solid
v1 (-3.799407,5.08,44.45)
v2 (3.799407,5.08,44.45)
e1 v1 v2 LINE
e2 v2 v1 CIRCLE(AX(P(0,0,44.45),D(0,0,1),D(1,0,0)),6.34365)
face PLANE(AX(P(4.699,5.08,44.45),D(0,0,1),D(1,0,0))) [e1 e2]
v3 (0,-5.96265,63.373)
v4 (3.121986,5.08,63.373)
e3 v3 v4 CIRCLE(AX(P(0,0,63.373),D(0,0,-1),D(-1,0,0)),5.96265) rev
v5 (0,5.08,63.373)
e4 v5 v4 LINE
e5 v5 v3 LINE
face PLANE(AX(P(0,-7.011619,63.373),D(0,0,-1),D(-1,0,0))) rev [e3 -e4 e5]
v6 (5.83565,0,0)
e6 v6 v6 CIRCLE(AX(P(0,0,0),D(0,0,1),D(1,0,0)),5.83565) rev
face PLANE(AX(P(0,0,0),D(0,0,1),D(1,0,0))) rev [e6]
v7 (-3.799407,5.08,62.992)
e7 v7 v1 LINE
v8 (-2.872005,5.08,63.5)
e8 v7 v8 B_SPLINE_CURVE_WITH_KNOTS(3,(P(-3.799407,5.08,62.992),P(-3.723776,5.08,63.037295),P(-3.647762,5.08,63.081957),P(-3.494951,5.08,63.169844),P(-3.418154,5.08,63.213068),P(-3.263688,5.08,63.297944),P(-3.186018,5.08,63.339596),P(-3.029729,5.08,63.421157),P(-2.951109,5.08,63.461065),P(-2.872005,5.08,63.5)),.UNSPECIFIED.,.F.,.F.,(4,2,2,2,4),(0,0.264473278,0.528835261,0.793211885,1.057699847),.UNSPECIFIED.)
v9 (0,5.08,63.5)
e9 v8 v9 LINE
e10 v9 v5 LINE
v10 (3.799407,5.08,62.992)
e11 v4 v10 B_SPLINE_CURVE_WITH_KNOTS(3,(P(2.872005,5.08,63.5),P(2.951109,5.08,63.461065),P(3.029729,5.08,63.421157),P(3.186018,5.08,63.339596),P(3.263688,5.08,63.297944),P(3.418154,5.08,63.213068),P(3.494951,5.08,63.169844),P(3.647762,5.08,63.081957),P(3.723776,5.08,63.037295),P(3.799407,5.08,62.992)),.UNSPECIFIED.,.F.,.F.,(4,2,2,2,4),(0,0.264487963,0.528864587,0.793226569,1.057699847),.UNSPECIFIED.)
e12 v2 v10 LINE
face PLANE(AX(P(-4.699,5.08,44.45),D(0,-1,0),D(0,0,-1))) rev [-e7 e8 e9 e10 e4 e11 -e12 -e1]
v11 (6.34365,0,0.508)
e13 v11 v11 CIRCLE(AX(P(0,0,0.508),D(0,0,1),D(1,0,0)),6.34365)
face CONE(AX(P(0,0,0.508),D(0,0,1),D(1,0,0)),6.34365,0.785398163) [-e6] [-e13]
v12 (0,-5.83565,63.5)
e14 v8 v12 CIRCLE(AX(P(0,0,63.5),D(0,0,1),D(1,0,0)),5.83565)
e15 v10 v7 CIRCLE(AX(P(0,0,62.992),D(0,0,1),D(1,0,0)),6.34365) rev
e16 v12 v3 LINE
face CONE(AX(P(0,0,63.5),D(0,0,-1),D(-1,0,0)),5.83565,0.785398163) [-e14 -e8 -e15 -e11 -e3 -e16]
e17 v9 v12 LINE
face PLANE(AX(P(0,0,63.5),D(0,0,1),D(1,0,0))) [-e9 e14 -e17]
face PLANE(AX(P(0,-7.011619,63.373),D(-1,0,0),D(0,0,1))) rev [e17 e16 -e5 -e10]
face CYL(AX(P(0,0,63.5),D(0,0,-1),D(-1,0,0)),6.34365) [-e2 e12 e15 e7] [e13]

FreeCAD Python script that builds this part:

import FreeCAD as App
import Part
import Sketcher
from FreeCAD import Vector
Q = App.Units.Quantity


def edges_at(feature, points):
    """Names of the edges that pass closest to the given points."""
    edges = feature.Shape.Edges
    near = lambda p: min(range(len(edges)), key=lambda i: edges[i].distToShape(Part.Vertex(*p))[0])
    return sorted({f"Edge{near(p) + 1}" for p in points})


def add_polygon(sketch, points):
    """Adds a closed chain of lines whose ends are joined by coincident constraints."""
    first, n = sketch.GeometryCount, len(points)
    for a, b in zip(points, points[1:] + points[:1]):
        sketch.addGeometry(Part.LineSegment(App.Vector(*a, 0), App.Vector(*b, 0)), False)
    for i in range(n):
        sketch.addConstraint(Sketcher.Constraint("Coincident", first + i, 2, first + (i + 1) % n, 1))

doc = App.newDocument("Part")
params = doc.addObject("Spreadsheet::Sheet", "Params")
for row, (alias, value) in enumerate([
    ("pad1_length", "2.5 in"),
    ("sketch2_width", "0.37 in"),
    ("sketch2_height", "0.125 in"),
    ("pocket1_length", "0.75 in"),
    ("chamfer_size", "0.02 in"),
    ("pocket2_length", "0.005 in"),
], start=1):
    params.set(f"A{row}", alias)
    params.set(f"B{row}", "=" + value)
    params.setAlias(f"B{row}", alias)

body = doc.addObject("PartDesign::Body", "Body")

# Sketch on XY plane
sketch1 = body.newObject("Sketcher::SketchObject", "Sketch")
sketch1.AttachmentSupport = (doc.getObject("XY_Plane"), [""])
sketch1.MapMode = "FlatFace"
sketch1.addGeometry(Part.Circle(Vector(0, 0, 0), Vector(0, 0, 1), 6.34365), False)
sketch1.addConstraint(Sketcher.Constraint("Coincident", 0, 3, -1, 1))
sketch1.addConstraint(Sketcher.Constraint("Diameter", 0, Q("0.4995 in")))
pad1 = body.newObject("PartDesign::Pad", "Pad")
pad1.Profile = sketch1
pad1.setExpression("Length", "Params.pad1_length")

# Sketch on XY plane
sketch2 = body.newObject("Sketcher::SketchObject", "Sketch001")
sketch2.AttachmentSupport = (doc.getObject("XY_Plane"), [""])
sketch2.MapMode = "FlatFace"
sketch2.AttachmentOffset = App.Placement(Vector(0, 0, 2.5 * 25.4), App.Rotation())
add_polygon(sketch2, [(-4.699, 8.255), (-4.699, 5.08), (4.699, 5.08), (4.699, 8.255)])  # lines 0-3
sketch2.addConstraint(Sketcher.Constraint("Vertical", 0))
sketch2.addConstraint(Sketcher.Constraint("Horizontal", 1))
sketch2.addConstraint(Sketcher.Constraint("Vertical", 2))
sketch2.addConstraint(Sketcher.Constraint("Horizontal", 3))
sketch2.addConstraint(Sketcher.Constraint("DistanceX", 1, 1, 1, 2, Q("0.37 in")))
sketch2.addConstraint(Sketcher.Constraint("DistanceY", -1, 1, 0, 2, Q("0.2 in")))
sketch2.addConstraint(Sketcher.Constraint("DistanceY", 0, 2, 0, 1, Q("0.125 in")))
sketch2.addConstraint(Sketcher.Constraint("DistanceX", 0, 2, -1, 1, Q("0.185 in")))
sketch2.setExpression("Constraints[8]", "Params.sketch2_width")
sketch2.setExpression("Constraints[10]", "Params.sketch2_height")
pocket1 = body.newObject("PartDesign::Pocket", "Pocket")
pocket1.Profile = sketch2
pocket1.setExpression("Length", "Params.pocket1_length")
doc.recompute()

chamfer = body.newObject("PartDesign::Chamfer", "Chamfer")
chamfer.Base = (pocket1, edges_at(pocket1, [(-6.344, 0, 0), (-2.841, -5.672, 63.5)]))
chamfer.setExpression("Size", "Params.chamfer_size")

# Sketch on XY plane
sketch3 = body.newObject("Sketcher::SketchObject", "Sketch002")
sketch3.AttachmentSupport = (doc.getObject("XY_Plane"), [""])
sketch3.MapMode = "FlatFace"
sketch3.AttachmentOffset = App.Placement(Vector(0, 0, 2.5 * 25.4), App.Rotation())
add_polygon(sketch3, [(0, 6.773203), (0, -7.011619), (7.358407, -7.011619), (7.358407, 6.773203)])  # lines 0-3
sketch3.addConstraint(Sketcher.Constraint("Vertical", 0))
sketch3.addConstraint(Sketcher.Constraint("Horizontal", 1))
sketch3.addConstraint(Sketcher.Constraint("Vertical", 2))
sketch3.addConstraint(Sketcher.Constraint("Horizontal", 3))
sketch3.addConstraint(Sketcher.Constraint("PointOnObject", 0, 2, -2))
sketch3.addConstraint(Sketcher.Constraint("DistanceX", 1, 1, 1, 2, Q("7.358407 mm")))
sketch3.addConstraint(Sketcher.Constraint("DistanceY", 0, 2, 0, 1, Q("13.784822 mm")))
sketch3.addConstraint(Sketcher.Constraint("DistanceY", 0, 2, -1, 1, Q("7.011619 mm")))
pocket2 = body.newObject("PartDesign::Pocket", "Pocket001")
pocket2.Profile = sketch3
pocket2.setExpression("Length", "Params.pocket2_length")

doc.recompute()
